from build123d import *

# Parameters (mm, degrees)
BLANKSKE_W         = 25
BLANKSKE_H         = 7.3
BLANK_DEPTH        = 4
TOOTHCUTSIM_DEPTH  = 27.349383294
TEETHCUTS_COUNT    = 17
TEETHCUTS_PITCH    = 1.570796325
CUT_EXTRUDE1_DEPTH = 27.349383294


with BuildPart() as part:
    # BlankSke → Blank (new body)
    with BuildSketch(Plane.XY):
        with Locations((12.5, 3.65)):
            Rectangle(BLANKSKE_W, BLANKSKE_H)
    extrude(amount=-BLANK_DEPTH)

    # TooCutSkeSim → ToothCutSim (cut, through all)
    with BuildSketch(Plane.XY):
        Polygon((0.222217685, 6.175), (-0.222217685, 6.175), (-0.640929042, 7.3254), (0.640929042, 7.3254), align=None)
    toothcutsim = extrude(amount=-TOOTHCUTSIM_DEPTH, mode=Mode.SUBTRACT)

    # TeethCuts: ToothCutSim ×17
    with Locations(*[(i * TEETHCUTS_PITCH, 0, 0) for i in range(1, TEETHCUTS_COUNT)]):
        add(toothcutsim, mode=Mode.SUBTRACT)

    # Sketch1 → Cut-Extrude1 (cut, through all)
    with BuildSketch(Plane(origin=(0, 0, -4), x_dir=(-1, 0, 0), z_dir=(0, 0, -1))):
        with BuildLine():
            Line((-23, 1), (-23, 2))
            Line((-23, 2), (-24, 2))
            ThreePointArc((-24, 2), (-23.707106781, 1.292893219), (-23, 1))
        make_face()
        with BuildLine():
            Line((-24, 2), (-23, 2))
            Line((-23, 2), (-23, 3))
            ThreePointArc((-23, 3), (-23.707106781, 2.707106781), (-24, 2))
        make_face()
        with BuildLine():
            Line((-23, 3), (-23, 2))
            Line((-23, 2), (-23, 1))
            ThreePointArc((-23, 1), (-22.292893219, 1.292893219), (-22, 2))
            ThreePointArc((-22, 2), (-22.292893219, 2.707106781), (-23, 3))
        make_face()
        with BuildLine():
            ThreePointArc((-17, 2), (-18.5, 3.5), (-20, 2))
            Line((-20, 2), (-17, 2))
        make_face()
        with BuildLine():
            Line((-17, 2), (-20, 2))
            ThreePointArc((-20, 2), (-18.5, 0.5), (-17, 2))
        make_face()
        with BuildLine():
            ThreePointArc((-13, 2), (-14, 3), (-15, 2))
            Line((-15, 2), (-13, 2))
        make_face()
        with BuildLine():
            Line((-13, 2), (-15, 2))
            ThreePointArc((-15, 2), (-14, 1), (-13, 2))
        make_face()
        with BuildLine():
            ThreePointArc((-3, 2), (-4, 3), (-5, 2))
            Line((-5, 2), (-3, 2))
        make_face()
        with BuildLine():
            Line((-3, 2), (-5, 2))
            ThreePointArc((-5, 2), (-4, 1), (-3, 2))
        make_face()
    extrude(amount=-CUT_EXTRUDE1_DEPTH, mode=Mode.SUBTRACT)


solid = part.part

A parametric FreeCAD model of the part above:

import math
import FreeCAD as App
import Part
import Sketcher
from FreeCAD import Vector
Q = App.Units.Quantity

doc = App.newDocument("Part")
body = doc.addObject("PartDesign::Body", "Body")

# Sketch on XY plane
sketch1 = doc.addObject("Sketcher::SketchObject", "Sketch")
body.addObject(sketch1)
sketch1.AttachmentSupport = (doc.XY_Plane, [""])
sketch1.MapMode = "FlatFace"
sketch1.addGeometry(Part.LineSegment(Vector(0, 7, 0), Vector(0, 0, 0)), False)
sketch1.addGeometry(Part.LineSegment(Vector(0, 0, 0), Vector(25, 0, 0)), False)
sketch1.addGeometry(Part.LineSegment(Vector(25, 0, 0), Vector(25, 7, 0)), False)
sketch1.addGeometry(Part.LineSegment(Vector(25, 7, 0), Vector(0, 7, 0)), False)
sketch1.addConstraint(Sketcher.Constraint("Coincident", 0, 2, 1, 1))
sketch1.addConstraint(Sketcher.Constraint("Coincident", 1, 2, 2, 1))
sketch1.addConstraint(Sketcher.Constraint("Coincident", 2, 2, 3, 1))
sketch1.addConstraint(Sketcher.Constraint("Coincident", 3, 2, 0, 1))
sketch1.addConstraint(Sketcher.Constraint("Vertical", 0))
sketch1.addConstraint(Sketcher.Constraint("Horizontal", 1))
sketch1.addConstraint(Sketcher.Constraint("Vertical", 2))
sketch1.addConstraint(Sketcher.Constraint("Horizontal", 3))
sketch1.addConstraint(Sketcher.Constraint("Coincident", 0, 2, -1, 1))
sketch1.addConstraint(Sketcher.Constraint("DistanceX", 1, 1, 1, 2, 25.0))
sketch1.addConstraint(Sketcher.Constraint("DistanceY", 0, 2, 0, 1, 7.3))
pad1 = doc.addObject("PartDesign::Pad", "Pad")
body.addObject(pad1)
pad1.Profile = sketch1
pad1.Length = 4
pad1.Reversed = True

# Sketch on XY plane
sketch2 = doc.addObject("Sketcher::SketchObject", "Sketch001")
body.addObject(sketch2)
sketch2.AttachmentSupport = (doc.XY_Plane, [""])
sketch2.MapMode = "FlatFace"
sketch2.addGeometry(Part.LineSegment(Vector(-0.22, 6.17, 0), Vector(0.22, 6.17, 0)), False)
sketch2.addGeometry(Part.LineSegment(Vector(0.22, 6.17, 0), Vector(0.64, 7.33, 0)), False)
sketch2.addGeometry(Part.LineSegment(Vector(0.64, 7.33, 0), Vector(-0.64, 7.33, 0)), False)
sketch2.addGeometry(Part.LineSegment(Vector(-0.64, 7.33, 0), Vector(-0.22, 6.17, 0)), False)
sketch2.addConstraint(Sketcher.Constraint("Coincident", 0, 2, 1, 1))
sketch2.addConstraint(Sketcher.Constraint("Coincident", 1, 2, 2, 1))
sketch2.addConstraint(Sketcher.Constraint("Coincident", 2, 2, 3, 1))
sketch2.addConstraint(Sketcher.Constraint("Coincident", 3, 2, 0, 1))
sketch2.addConstraint(Sketcher.Constraint("Horizontal", 0))
sketch2.addConstraint(Sketcher.Constraint("Horizontal", 2))
sketch2.addConstraint(Sketcher.Constraint("Equal", 1, 3))
sketch2.addConstraint(Sketcher.Constraint("Angle", 1, Q("70 deg")))
sketch2.addConstraint(Sketcher.Constraint("DistanceY", -1, 1, 0, 2, 6.175))
sketch2.addConstraint(Sketcher.Constraint("DistanceX", 2, 2, 2, 1, 1.281858))
sketch2.addConstraint(Sketcher.Constraint("DistanceY", -1, 1, 1, 2, 7.3254))
sketch2.addConstraint(Sketcher.Constraint("DistanceX", -1, 1, 1, 2, 0.640929))
pocket1 = doc.addObject("PartDesign::Pocket", "Pocket")
body.addObject(pocket1)
pocket1.Profile = sketch2
pocket1.Type = "ThroughAll"
doc.recompute()

linearpattern = doc.addObject("PartDesign::LinearPattern", "LinearPattern")
body.addObject(linearpattern)
linearpattern.Originals = [pocket1]
linearpattern.Direction = (doc.X_Axis, [""])
linearpattern.Mode = "offset"
linearpattern.Offset = 1.570796
linearpattern.Occurrences = 17
body.Tip = linearpattern

# Sketch on XY plane
sketch3 = doc.addObject("Sketcher::SketchObject", "Sketch002")
body.addObject(sketch3)
sketch3.AttachmentSupport = (doc.XY_Plane, [""])
sketch3.MapMode = "FlatFace"
sketch3.AttachmentOffset = App.Placement(Vector(0, 0, -4), App.Rotation())
sketch3.addGeometry(Part.ArcOfCircle(Part.Circle(Vector(23, 2, 0), Vector(0, 0, 1), 1), math.radians(-180), math.radians(-90)), False)
sketch3.addGeometry(Part.ArcOfCircle(Part.Circle(Vector(23, 2, 0), Vector(0, 0, 1), 1), math.radians(90), math.radians(180)), False)
sketch3.addGeometry(Part.ArcOfCircle(Part.Circle(Vector(23, 2, 0), Vector(0, 0, 1), 1), math.radians(0), math.radians(90)), False)
sketch3.addGeometry(Part.ArcOfCircle(Part.Circle(Vector(23, 2, 0), Vector(0, 0, 1), 1), math.radians(-90), math.radians(0)), False)
sketch3.addGeometry(Part.Circle(Vector(18.5, 2, 0), Vector(0, 0, 1), 1.5), False)
sketch3.addGeometry(Part.Circle(Vector(14, 2, 0), Vector(0, 0, 1), 1), False)
sketch3.addGeometry(Part.Circle(Vector(4, 2, 0), Vector(0, 0, 1), 1), False)
sketch3.addConstraint(Sketcher.Constraint("Tangent", 0, 1, 1, 2))
sketch3.addConstraint(Sketcher.Constraint("Tangent", 1, 1, 2, 2))
sketch3.addConstraint(Sketcher.Constraint("Tangent", 2, 1, 3, 2))
sketch3.addConstraint(Sketcher.Constraint("Tangent", 3, 1, 0, 2))
sketch3.addConstraint(Sketcher.Constraint("Equal", 0, 1))
sketch3.addConstraint(Sketcher.Constraint("Equal", 3, 5))
sketch3.addConstraint(Sketcher.Constraint("Equal", 5, 6))
sketch3.addConstraint(Sketcher.Constraint("Horizontal", 3, 3, 4, 3))
sketch3.addConstraint(Sketcher.Constraint("Horizontal", 4, 3, 5, 3))
sketch3.addConstraint(Sketcher.Constraint("Horizontal", 5, 3, 6, 3))
sketch3.addConstraint(Sketcher.Constraint("Horizontal", 6, 3, 0, 1))
sketch3.addConstraint(Sketcher.Constraint("Horizontal", 0, 1, 2, 1))
sketch3.addConstraint(Sketcher.Constraint("Vertical", 3, 3, 1, 1))
sketch3.addConstraint(Sketcher.Constraint("Vertical", 1, 1, 3, 1))
sketch3.addConstraint(Sketcher.Constraint("Diameter", 4, 3.0))
sketch3.addConstraint(Sketcher.Constraint("Diameter", 5, 2.0))
sketch3.addConstraint(Sketcher.Constraint("DistanceX", -1, 1, 0, 3, 23.0))
sketch3.addConstraint(Sketcher.Constraint("DistanceY", -1, 1, 0, 3, 2.0))
sketch3.addConstraint(Sketcher.Constraint("DistanceX", -1, 1, 5, 3, 14.0))
sketch3.addConstraint(Sketcher.Constraint("DistanceX", -1, 1, 6, 3, 4.0))
sketch3.addConstraint(Sketcher.Constraint("DistanceX", -1, 1, 4, 3, 18.5))
pocket2 = doc.addObject("PartDesign::Pocket", "Pocket001")
body.addObject(pocket2)
pocket2.Profile = sketch3
pocket2.Type = "ThroughAll"
pocket2.Reversed = True

doc.recompute()
